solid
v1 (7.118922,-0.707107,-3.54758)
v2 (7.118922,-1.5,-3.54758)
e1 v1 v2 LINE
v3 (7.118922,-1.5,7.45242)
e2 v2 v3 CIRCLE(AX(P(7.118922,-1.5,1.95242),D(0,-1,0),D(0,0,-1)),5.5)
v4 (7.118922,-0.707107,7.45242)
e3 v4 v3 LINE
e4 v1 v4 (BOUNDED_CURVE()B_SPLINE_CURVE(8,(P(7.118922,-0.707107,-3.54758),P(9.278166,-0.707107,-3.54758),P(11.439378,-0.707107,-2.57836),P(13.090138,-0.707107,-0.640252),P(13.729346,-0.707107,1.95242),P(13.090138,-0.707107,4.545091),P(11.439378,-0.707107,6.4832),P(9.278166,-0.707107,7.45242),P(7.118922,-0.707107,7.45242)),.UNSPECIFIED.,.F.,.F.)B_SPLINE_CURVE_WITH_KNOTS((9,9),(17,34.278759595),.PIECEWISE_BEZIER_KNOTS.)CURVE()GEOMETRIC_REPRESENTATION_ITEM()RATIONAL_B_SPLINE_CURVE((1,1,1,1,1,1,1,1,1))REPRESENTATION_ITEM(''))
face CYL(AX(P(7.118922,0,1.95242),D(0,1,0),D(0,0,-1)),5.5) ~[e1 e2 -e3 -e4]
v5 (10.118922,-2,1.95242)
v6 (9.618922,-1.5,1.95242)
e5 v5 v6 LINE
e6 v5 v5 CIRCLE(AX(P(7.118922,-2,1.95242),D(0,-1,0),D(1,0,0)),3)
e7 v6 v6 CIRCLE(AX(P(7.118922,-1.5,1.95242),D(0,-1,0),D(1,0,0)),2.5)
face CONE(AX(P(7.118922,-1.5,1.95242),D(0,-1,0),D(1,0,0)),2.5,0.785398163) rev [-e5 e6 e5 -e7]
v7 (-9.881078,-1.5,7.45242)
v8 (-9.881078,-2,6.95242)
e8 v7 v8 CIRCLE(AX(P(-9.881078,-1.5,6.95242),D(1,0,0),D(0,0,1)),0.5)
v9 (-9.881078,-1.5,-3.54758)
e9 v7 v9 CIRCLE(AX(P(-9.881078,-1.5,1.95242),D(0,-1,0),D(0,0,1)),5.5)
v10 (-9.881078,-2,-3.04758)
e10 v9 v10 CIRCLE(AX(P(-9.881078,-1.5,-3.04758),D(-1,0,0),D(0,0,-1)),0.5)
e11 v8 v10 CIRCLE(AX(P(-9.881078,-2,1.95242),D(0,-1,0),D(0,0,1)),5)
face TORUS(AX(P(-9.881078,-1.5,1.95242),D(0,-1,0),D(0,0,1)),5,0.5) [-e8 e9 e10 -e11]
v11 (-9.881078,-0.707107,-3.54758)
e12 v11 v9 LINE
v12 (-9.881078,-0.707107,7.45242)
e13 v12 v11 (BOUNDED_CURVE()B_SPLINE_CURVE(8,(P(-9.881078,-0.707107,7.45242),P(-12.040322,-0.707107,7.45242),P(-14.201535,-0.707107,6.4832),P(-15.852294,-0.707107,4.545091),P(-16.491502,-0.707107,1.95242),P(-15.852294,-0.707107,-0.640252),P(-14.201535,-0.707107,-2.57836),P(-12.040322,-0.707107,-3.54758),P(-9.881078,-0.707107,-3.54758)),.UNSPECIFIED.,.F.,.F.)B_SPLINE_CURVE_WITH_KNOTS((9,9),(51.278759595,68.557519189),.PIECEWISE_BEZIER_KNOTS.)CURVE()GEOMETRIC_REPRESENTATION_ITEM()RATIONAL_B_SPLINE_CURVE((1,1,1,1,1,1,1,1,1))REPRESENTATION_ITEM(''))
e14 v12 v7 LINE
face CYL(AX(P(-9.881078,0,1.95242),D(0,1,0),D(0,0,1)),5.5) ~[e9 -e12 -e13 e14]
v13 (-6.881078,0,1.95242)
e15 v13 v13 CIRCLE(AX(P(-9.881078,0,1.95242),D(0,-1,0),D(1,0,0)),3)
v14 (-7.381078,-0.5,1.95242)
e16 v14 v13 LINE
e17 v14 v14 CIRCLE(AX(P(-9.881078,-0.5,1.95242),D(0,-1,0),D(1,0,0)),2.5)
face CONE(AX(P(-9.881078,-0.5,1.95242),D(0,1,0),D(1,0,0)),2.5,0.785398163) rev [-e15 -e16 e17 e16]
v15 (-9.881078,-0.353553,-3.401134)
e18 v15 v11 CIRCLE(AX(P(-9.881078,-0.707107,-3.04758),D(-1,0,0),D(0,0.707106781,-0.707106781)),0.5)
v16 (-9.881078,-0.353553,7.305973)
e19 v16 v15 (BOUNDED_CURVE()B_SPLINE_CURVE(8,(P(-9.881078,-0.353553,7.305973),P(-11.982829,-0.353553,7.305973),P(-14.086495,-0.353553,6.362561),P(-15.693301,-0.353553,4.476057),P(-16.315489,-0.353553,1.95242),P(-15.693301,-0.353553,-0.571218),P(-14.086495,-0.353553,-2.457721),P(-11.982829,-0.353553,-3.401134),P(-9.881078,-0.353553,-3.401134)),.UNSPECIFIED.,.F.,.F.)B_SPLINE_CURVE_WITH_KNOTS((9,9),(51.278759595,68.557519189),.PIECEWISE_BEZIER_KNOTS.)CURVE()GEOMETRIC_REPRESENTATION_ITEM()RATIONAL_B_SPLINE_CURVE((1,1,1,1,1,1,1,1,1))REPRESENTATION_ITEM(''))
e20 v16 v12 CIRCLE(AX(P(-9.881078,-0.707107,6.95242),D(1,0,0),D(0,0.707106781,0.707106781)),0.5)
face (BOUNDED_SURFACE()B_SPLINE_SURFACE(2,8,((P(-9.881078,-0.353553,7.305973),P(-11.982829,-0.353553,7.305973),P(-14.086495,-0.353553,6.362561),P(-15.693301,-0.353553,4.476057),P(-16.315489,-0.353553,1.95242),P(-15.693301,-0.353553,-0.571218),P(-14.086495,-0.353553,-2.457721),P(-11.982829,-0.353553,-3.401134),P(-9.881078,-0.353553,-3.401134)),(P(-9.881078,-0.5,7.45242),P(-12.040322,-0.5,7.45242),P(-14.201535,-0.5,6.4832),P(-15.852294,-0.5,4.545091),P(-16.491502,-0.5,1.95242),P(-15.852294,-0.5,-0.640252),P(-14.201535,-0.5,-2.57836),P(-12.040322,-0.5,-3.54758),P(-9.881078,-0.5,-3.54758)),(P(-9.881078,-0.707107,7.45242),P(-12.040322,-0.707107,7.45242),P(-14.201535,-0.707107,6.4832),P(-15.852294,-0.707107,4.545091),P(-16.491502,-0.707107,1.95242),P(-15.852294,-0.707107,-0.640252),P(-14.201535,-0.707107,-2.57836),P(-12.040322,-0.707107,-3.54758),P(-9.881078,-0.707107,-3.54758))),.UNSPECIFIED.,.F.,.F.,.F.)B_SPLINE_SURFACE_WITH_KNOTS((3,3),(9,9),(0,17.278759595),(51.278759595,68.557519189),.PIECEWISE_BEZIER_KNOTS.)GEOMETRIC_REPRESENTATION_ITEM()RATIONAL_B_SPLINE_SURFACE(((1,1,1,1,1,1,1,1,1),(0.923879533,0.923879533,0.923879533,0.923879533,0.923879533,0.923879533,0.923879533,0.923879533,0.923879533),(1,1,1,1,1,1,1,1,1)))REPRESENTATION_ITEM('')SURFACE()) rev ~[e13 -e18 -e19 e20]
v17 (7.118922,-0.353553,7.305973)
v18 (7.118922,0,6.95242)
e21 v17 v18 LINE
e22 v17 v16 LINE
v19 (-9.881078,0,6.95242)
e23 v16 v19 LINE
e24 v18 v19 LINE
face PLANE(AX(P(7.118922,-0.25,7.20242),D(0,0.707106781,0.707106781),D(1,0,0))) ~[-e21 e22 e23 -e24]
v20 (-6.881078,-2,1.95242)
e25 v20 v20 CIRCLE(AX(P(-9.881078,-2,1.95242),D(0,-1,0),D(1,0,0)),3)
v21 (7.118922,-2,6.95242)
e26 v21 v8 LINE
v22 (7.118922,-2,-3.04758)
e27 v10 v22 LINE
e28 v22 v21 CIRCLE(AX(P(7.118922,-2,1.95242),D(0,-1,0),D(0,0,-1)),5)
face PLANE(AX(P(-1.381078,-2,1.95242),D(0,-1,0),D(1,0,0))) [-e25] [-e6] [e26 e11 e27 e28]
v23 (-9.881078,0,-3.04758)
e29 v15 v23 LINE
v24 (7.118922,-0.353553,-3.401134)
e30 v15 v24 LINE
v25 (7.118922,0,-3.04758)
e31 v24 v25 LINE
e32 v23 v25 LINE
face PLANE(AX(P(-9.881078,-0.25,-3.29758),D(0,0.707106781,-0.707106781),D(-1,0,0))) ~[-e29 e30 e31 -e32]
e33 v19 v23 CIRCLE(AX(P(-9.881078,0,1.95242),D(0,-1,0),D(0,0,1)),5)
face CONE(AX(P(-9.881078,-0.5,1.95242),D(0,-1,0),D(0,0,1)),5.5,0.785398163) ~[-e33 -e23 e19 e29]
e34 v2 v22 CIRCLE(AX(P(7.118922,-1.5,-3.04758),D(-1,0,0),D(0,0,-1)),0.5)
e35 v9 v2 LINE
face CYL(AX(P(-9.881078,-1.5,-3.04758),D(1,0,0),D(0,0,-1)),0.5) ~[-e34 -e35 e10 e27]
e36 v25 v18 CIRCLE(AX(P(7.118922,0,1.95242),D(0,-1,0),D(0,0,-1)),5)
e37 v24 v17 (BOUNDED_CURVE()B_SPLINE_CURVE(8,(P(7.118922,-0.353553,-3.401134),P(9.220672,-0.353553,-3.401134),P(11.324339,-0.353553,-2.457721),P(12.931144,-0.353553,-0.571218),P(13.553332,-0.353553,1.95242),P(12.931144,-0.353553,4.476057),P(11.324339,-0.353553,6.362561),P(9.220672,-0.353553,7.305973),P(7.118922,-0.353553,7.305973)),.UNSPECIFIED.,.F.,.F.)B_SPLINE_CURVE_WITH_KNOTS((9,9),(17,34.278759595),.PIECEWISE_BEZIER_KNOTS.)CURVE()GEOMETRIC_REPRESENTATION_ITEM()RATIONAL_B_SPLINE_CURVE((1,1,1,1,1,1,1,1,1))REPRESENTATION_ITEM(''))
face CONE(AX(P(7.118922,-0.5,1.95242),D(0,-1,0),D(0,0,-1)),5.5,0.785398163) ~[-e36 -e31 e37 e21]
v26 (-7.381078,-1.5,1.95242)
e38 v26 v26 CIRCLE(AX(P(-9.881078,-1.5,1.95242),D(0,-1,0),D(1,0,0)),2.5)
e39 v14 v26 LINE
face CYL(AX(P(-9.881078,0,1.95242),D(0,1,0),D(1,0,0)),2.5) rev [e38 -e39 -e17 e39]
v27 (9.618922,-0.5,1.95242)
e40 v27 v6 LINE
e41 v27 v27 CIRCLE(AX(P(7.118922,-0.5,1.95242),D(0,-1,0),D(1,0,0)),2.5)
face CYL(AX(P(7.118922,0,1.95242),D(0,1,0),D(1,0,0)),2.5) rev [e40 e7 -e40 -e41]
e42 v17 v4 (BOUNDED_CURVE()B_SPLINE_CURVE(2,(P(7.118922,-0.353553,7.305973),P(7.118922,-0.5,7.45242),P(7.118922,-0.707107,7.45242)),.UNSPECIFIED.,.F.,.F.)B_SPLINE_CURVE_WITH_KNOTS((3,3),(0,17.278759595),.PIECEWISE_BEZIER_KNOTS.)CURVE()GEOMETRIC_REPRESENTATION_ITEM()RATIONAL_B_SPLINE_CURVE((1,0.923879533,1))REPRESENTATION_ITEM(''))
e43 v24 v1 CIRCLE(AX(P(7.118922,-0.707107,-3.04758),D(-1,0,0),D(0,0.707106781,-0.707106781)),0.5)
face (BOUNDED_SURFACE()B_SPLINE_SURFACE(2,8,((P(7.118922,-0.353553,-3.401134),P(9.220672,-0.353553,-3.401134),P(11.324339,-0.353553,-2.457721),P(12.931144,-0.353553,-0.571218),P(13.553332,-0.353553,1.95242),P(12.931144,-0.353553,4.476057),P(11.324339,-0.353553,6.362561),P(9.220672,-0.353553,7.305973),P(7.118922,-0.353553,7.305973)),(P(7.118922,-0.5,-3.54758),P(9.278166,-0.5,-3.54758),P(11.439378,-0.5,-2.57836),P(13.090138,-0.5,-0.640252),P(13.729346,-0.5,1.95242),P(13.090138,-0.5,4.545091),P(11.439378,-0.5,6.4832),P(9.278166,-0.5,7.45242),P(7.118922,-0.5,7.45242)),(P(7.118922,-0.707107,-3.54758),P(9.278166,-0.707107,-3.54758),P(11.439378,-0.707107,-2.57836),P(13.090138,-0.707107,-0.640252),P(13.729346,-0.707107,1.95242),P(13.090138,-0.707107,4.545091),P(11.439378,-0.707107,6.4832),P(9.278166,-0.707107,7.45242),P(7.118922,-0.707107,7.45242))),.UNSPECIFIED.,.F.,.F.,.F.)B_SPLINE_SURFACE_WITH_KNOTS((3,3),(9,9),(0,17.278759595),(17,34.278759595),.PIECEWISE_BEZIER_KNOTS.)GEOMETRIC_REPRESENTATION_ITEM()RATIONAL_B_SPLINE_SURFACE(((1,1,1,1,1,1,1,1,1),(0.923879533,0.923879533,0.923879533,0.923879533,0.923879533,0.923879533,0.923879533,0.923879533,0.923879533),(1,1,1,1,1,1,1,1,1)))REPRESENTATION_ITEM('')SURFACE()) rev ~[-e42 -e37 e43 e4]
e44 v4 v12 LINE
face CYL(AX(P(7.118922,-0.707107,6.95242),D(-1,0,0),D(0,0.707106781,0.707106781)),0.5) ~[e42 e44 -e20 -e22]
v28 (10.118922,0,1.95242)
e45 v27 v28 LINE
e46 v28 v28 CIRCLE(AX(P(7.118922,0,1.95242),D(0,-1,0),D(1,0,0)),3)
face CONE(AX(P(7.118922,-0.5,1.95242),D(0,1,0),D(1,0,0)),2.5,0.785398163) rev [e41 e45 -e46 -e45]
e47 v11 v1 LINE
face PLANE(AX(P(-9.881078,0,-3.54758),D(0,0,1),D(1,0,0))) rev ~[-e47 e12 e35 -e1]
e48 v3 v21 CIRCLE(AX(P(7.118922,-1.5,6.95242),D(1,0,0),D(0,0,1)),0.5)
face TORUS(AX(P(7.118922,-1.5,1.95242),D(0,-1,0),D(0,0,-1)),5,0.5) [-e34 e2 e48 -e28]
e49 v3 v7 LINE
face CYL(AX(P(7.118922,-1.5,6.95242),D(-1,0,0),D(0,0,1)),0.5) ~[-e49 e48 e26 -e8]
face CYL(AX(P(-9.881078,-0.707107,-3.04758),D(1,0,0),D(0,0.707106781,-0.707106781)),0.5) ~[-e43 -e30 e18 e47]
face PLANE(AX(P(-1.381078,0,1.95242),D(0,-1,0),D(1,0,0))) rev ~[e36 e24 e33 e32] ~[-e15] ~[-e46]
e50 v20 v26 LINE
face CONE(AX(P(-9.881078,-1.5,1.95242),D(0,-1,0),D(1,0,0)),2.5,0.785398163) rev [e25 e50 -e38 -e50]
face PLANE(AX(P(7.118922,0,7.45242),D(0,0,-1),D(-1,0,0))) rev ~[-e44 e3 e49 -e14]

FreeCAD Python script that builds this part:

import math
import FreeCAD as App
import Part
import Sketcher

V = App.Vector
Q = App.Units.Quantity


def edges_at(feature, points):
    """Names of the edges that pass closest to the given points."""
    edges = feature.Shape.Edges
    near = lambda p: min(range(len(edges)), key=lambda i: edges[i].distToShape(Part.Vertex(*p))[0])
    return sorted({f"Edge{near(p) + 1}" for p in points})

doc = App.newDocument("Part")
params = doc.addObject("Spreadsheet::Sheet", "Params")
for row, (alias, value) in enumerate([
    ("sketch1_diameter", "5 mm"),
    ("sketch1_radius", "5.5 mm"),
    ("sketch1_width", "17 mm"),
    ("pad1_length", "2 mm"),
    ("fillet_radius", "0.5 mm"),
    ("chamfer_size", "0.5 mm"),
    ("chamfer2_size", "0.5 mm"),
    ("fillet2_radius", "0.5 mm"),
], start=1):
    params.set(f"A{row}", alias)
    params.set(f"B{row}", "=" + value)
    params.setAlias(f"B{row}", alias)

body = doc.addObject("PartDesign::Body", "Body")

# Sketch on XZ plane
sketch1 = doc.addObject("Sketcher::SketchObject", "Sketch")
body.addObject(sketch1)
sketch1.AttachmentSupport = (doc.XZ_Plane, [""])
sketch1.MapMode = "FlatFace"
sketch1.addGeometry([
    Part.LineSegment(V(7.1, 7.5, 0), V(-9.9, 7.5, 0)),  # 0
    Part.ArcOfCircle(Part.Circle(V(-9.9, 2, 0), V(0, 0, 1), 5.5), math.radians(90), math.radians(270)),  # 1
    Part.LineSegment(V(-9.9, -3.5, 0), V(7.1, -3.5, 0)),  # 2
    Part.ArcOfCircle(Part.Circle(V(7.1, 2, 0), V(0, 0, 1), 5.5), math.radians(-90), math.radians(90)),  # 3
    Part.Circle(V(-9.9, 2, 0), V(0, 0, 1), 2.5),  # 4
    Part.Circle(V(7.1, 2, 0), V(0, 0, 1), 2.5),  # 5
], False)
sketch1.addConstraint([
    Sketcher.Constraint("Tangent", 0, 2, 1, 1),
    Sketcher.Constraint("Tangent", 1, 2, 2, 1),
    Sketcher.Constraint("Tangent", 2, 2, 3, 1),
    Sketcher.Constraint("Tangent", 3, 2, 0, 1),
    Sketcher.Constraint("Horizontal", 0),
    Sketcher.Constraint("Horizontal", 2),
    Sketcher.Constraint("Coincident", 4, 3, 1, 3),
    Sketcher.Constraint("Coincident", 5, 3, 3, 3),
    Sketcher.Constraint("Equal", 4, 5),
    Sketcher.Constraint("Diameter", 4, Q("5 mm")),
    Sketcher.Constraint("Radius", 1, Q("5.5 mm")),
    Sketcher.Constraint("DistanceX", 0, 2, 0, 1, Q("17 mm")),
    Sketcher.Constraint("DistanceX", 1, 3, -1, 1, Q("9.881078 mm")),
    Sketcher.Constraint("DistanceY", -1, 1, 1, 3, Q("1.95242 mm")),
])
sketch1.setExpression("Constraints[9]", "Params.sketch1_diameter")
sketch1.setExpression("Constraints[10]", "Params.sketch1_radius")
sketch1.setExpression("Constraints[11]", "Params.sketch1_width")
pad1 = doc.addObject("PartDesign::Pad", "Pad")
body.addObject(pad1)
pad1.Profile = sketch1
pad1.setExpression("Length", "Params.pad1_length")
doc.recompute()

fillet = doc.addObject("PartDesign::Fillet", "Fillet")
body.addObject(fillet)
fillet.Base = (pad1, edges_at(pad1, [(-1.381, -2, 7.452)]))
fillet.setExpression("Radius", "Params.fillet_radius")
doc.recompute()

chamfer = doc.addObject("PartDesign::Chamfer", "Chamfer")
body.addObject(chamfer)
chamfer.Base = (fillet, edges_at(fillet, [(-12.381, -2, 1.952), (4.619, -2, 1.952)]))
chamfer.setExpression("Size", "Params.chamfer_size")
doc.recompute()

chamfer2 = doc.addObject("PartDesign::Chamfer", "Chamfer001")
body.addObject(chamfer2)
chamfer2.Base = (chamfer, edges_at(chamfer, [
    (-12.381, 0, 1.952),
    (-1.381, 0, 7.452),
    (-15.381, 0, 1.952),
    (-1.381, 0, -3.548),
    (12.619, 0, 1.952),
    (4.619, 0, 1.952),
]))
chamfer2.setExpression("Size", "Params.chamfer2_size")
doc.recompute()

fillet2 = doc.addObject("PartDesign::Fillet", "Fillet001")
body.addObject(fillet2)
fillet2.Base = (chamfer2, edges_at(chamfer2, [(-1.381, -0.5, -3.548)]))
fillet2.setExpression("Radius", "Params.fillet2_radius")

doc.recompute()
